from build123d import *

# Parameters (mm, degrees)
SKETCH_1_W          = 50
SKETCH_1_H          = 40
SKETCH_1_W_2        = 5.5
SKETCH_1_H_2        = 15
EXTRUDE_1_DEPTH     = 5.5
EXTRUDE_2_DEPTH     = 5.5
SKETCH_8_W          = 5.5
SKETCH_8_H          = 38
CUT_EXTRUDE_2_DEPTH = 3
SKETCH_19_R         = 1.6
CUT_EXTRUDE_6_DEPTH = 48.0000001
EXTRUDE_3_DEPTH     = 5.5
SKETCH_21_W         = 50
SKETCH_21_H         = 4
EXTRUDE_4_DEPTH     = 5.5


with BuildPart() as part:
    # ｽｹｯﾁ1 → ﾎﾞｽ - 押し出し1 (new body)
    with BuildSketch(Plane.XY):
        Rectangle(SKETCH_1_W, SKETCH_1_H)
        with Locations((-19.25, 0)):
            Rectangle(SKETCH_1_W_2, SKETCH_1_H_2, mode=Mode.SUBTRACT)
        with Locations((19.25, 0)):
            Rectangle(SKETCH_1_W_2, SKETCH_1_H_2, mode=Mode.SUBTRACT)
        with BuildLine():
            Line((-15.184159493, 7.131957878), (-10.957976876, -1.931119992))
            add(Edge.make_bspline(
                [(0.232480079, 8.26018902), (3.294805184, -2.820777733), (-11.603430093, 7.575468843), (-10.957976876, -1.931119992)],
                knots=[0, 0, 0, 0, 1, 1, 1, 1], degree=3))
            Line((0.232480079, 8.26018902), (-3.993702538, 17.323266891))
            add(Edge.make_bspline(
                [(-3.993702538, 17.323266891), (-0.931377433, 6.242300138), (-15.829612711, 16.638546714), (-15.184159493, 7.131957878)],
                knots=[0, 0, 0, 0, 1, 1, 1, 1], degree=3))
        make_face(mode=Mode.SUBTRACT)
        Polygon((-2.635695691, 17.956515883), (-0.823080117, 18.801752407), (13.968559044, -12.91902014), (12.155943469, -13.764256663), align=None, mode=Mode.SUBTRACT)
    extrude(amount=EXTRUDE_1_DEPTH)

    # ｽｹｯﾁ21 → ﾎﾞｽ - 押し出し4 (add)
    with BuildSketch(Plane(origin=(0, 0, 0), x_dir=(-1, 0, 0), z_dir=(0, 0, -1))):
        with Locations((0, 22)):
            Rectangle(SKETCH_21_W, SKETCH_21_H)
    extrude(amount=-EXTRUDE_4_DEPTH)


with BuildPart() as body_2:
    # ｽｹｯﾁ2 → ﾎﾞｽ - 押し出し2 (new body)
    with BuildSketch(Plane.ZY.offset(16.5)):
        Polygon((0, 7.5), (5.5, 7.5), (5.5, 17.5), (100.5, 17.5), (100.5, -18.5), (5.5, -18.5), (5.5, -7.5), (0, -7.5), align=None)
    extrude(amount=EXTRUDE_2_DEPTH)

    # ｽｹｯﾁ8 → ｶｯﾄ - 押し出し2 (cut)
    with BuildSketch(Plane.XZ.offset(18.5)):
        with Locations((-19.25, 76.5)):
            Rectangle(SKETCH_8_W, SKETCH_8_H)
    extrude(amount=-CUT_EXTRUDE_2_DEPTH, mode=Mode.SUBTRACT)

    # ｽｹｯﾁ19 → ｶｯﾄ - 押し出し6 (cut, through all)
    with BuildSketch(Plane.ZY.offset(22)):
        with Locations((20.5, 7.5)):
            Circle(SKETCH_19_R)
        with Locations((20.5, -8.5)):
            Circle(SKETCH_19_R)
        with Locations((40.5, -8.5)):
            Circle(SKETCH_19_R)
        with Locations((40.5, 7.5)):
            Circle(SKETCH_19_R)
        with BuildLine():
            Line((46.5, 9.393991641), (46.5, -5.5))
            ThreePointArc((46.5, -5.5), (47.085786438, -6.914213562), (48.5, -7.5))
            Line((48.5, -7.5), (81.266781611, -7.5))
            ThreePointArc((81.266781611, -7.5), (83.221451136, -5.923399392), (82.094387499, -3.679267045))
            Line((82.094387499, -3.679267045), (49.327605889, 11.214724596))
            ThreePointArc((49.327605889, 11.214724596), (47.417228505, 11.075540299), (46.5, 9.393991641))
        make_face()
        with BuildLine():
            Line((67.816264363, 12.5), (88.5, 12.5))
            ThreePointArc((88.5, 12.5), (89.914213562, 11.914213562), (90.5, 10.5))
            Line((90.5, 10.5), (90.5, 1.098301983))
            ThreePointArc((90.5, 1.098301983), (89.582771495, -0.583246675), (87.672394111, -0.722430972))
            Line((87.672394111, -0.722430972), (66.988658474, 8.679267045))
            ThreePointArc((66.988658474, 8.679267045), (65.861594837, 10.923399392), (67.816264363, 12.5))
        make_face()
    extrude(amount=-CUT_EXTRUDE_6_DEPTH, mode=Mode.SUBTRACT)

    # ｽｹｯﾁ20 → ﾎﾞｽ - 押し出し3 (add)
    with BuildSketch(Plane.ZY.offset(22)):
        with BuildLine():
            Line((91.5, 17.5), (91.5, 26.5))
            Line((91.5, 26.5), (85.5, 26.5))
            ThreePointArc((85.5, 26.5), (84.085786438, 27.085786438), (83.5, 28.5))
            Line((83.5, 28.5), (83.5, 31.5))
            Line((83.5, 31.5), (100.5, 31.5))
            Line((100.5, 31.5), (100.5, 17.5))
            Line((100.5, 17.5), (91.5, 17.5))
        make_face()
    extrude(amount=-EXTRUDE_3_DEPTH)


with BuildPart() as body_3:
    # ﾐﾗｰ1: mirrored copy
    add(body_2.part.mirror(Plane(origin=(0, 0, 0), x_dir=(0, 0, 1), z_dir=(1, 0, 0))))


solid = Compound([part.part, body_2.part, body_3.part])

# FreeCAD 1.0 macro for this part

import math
import FreeCAD as App
import Part
import Sketcher

V = App.Vector
Q = App.Units.Quantity

doc = App.newDocument("Part")
body = doc.addObject("PartDesign::Body", "Body")

# Sketch on XY plane
sketch1 = doc.addObject("Sketcher::SketchObject", "Sketch")
body.addObject(sketch1)
sketch1.AttachmentSupport = (doc.XY_Plane, [""])
sketch1.MapMode = "FlatFace"
sketch1.addGeometry([
    Part.LineSegment(V(-25, 20, 0), V(-25, -20, 0)),  # 0
    Part.LineSegment(V(-25, -20, 0), V(25, -20, 0)),  # 1
    Part.LineSegment(V(25, -20, 0), V(25, 20, 0)),  # 2
    Part.LineSegment(V(25, 20, 0), V(-25, 20, 0)),  # 3
    Part.LineSegment(V(-16.5, -7.5, 0), V(-22, -7.5, 0)),  # 4
    Part.LineSegment(V(-22, -7.5, 0), V(-22, 7.5, 0)),  # 5
    Part.LineSegment(V(-22, 7.5, 0), V(-16.5, 7.5, 0)),  # 6
    Part.LineSegment(V(-16.5, 7.5, 0), V(-16.5, -7.5, 0)),  # 7
    Part.LineSegment(V(22, -7.5, 0), V(16.5, -7.5, 0)),  # 8
    Part.LineSegment(V(16.5, -7.5, 0), V(16.5, 7.5, 0)),  # 9
    Part.LineSegment(V(16.5, 7.5, 0), V(22, 7.5, 0)),  # 10
    Part.LineSegment(V(22, 7.5, 0), V(22, -7.5, 0)),  # 11
    Part.LineSegment(V(-10.957977, -1.93112, 0), V(-15.184159, 7.131958, 0)),  # 12
    Part.BSplineCurve([V(-3.993703, 17.323267, 0), V(-0.931377, 6.2423, 0), V(-15.829613, 16.638547, 0), V(-15.184159, 7.131958, 0)], [4, 4], [0, 1], False, 3, [1, 1, 1, 1], False),  # 13
    Part.LineSegment(V(-3.993703, 17.323267, 0), V(0.23248, 8.260189, 0)),  # 14
    Part.BSplineCurve([V(0.23248, 8.260189, 0), V(3.294805, -2.820778, 0), V(-11.60343, 7.575469, 0), V(-10.957977, -1.93112, 0)], [4, 4], [0, 1], False, 3, [1, 1, 1, 1], False),  # 15
    Part.LineSegment(V(12.155943, -13.764257, 0), V(-2.635696, 17.956516, 0)),  # 16
    Part.LineSegment(V(-2.635696, 17.956516, 0), V(-0.82308, 18.801752, 0)),  # 17
    Part.LineSegment(V(-0.82308, 18.801752, 0), V(13.968559, -12.91902, 0)),  # 18
    Part.LineSegment(V(13.968559, -12.91902, 0), V(12.155943, -13.764257, 0)),  # 19
], False)
sketch1.addConstraint([
    Sketcher.Constraint("Block", 13),
    Sketcher.Constraint("Block", 15),
    Sketcher.Constraint("Coincident", 0, 2, 1, 1),
    Sketcher.Constraint("Coincident", 1, 2, 2, 1),
    Sketcher.Constraint("Coincident", 2, 2, 3, 1),
    Sketcher.Constraint("Coincident", 3, 2, 0, 1),
    Sketcher.Constraint("Coincident", 4, 2, 5, 1),
    Sketcher.Constraint("Coincident", 5, 2, 6, 1),
    Sketcher.Constraint("Coincident", 6, 2, 7, 1),
    Sketcher.Constraint("Coincident", 7, 2, 4, 1),
    Sketcher.Constraint("Coincident", 8, 2, 9, 1),
    Sketcher.Constraint("Coincident", 9, 2, 10, 1),
    Sketcher.Constraint("Coincident", 10, 2, 11, 1),
    Sketcher.Constraint("Coincident", 11, 2, 8, 1),
    Sketcher.Constraint("Coincident", 12, 2, 13, 2),
    Sketcher.Constraint("Coincident", 13, 1, 14, 1),
    Sketcher.Constraint("Coincident", 14, 2, 15, 1),
    Sketcher.Constraint("Coincident", 15, 2, 12, 1),
    Sketcher.Constraint("Coincident", 16, 2, 17, 1),
    Sketcher.Constraint("Coincident", 17, 2, 18, 1),
    Sketcher.Constraint("Coincident", 18, 2, 19, 1),
    Sketcher.Constraint("Coincident", 19, 2, 16, 1),
    Sketcher.Constraint("Vertical", 0),
    Sketcher.Constraint("Horizontal", 1),
    Sketcher.Constraint("Vertical", 2),
    Sketcher.Constraint("Horizontal", 3),
    Sketcher.Constraint("Horizontal", 4),
    Sketcher.Constraint("Vertical", 5),
    Sketcher.Constraint("Horizontal", 6),
    Sketcher.Constraint("Vertical", 7),
    Sketcher.Constraint("Horizontal", 8),
    Sketcher.Constraint("Vertical", 9),
    Sketcher.Constraint("Horizontal", 10),
    Sketcher.Constraint("Vertical", 11),
    Sketcher.Constraint("DistanceX", 1, 1, 1, 2, Q("50 mm")),
    Sketcher.Constraint("DistanceY", 0, 2, 0, 1, Q("40 mm")),
    Sketcher.Constraint("DistanceY", 5, 1, 5, 2, Q("15 mm")),
    Sketcher.Constraint("DistanceY", 9, 1, 9, 2, Q("15 mm")),
    Sketcher.Constraint("Distance", 16, Q("35 mm")),
    Sketcher.Constraint("Distance", 17, Q("2 mm")),
    Sketcher.Constraint("Distance", 18, Q("35 mm")),
    Sketcher.Constraint("Distance", 19, Q("2 mm")),
    Sketcher.Constraint("DistanceX", 4, 2, 4, 1, Q("5.5 mm")),
    Sketcher.Constraint("DistanceX", 8, 2, 8, 1, Q("5.5 mm")),
    Sketcher.Constraint("DistanceX", 0, 2, -1, 1, Q("25 mm")),
    Sketcher.Constraint("DistanceY", 0, 2, -1, 1, Q("20 mm")),
    Sketcher.Constraint("DistanceX", 4, 2, -1, 1, Q("22 mm")),
    Sketcher.Constraint("DistanceX", -1, 1, 10, 2, Q("22 mm")),
    Sketcher.Constraint("DistanceY", 8, 2, 6, 2, Q("15 mm")),
    Sketcher.Constraint("DistanceY", 4, 2, -1, 1, Q("7.5 mm")),
    Sketcher.Constraint("DistanceX", 17, 2, -1, 1, Q("0.82308 mm")),
    Sketcher.Constraint("DistanceX", -1, 1, 18, 2, Q("13.968559 mm")),
    Sketcher.Constraint("DistanceY", 18, 2, -1, 1, Q("12.91902 mm")),
    Sketcher.Constraint("DistanceY", 12, 2, 16, 2, Q("10.824558 mm")),
])
pad1 = doc.addObject("PartDesign::Pad", "Pad")
body.addObject(pad1)
pad1.Profile = sketch1
pad1.Length = 5.5

# Sketch on XY plane
sketch2 = doc.addObject("Sketcher::SketchObject", "Sketch001")
body.addObject(sketch2)
sketch2.AttachmentSupport = (doc.XY_Plane, [""])
sketch2.MapMode = "FlatFace"
sketch2.addGeometry([
    Part.LineSegment(V(25, 24, 0), V(25, 20, 0)),
    Part.LineSegment(V(25, 20, 0), V(-25, 20, 0)),
    Part.LineSegment(V(-25, 20, 0), V(-25, 24, 0)),
    Part.LineSegment(V(-25, 24, 0), V(25, 24, 0)),
], False)
sketch2.addConstraint([
    Sketcher.Constraint("Coincident", 0, 2, 1, 1),
    Sketcher.Constraint("Coincident", 1, 2, 2, 1),
    Sketcher.Constraint("Coincident", 2, 2, 3, 1),
    Sketcher.Constraint("Coincident", 3, 2, 0, 1),
    Sketcher.Constraint("Vertical", 0),
    Sketcher.Constraint("Horizontal", 1),
    Sketcher.Constraint("Vertical", 2),
    Sketcher.Constraint("Horizontal", 3),
    Sketcher.Constraint("DistanceX", 1, 2, 1, 1, Q("50 mm")),
    Sketcher.Constraint("DistanceY", 0, 2, 0, 1, Q("4 mm")),
    Sketcher.Constraint("DistanceX", -1, 1, 0, 2, Q("25 mm")),
    Sketcher.Constraint("DistanceY", -1, 1, 0, 2, Q("20 mm")),
])
pad2 = doc.addObject("PartDesign::Pad", "Pad001")
body.addObject(pad2)
pad2.Profile = sketch2
pad2.Length = 5.5
body2 = doc.addObject("PartDesign::Body", "Body001")

# Sketch on YZ plane
sketch3 = doc.addObject("Sketcher::SketchObject", "Sketch002")
body2.addObject(sketch3)
sketch3.AttachmentSupport = (doc.getObject("YZ_Plane001"), [""])
sketch3.MapMode = "FlatFace"
sketch3.AttachmentOffset = App.Placement(V(0, 0, -16.5), App.Rotation())
sketch3.addGeometry([
    Part.LineSegment(V(7.5, 5.5, 0), V(7.5, 0, 0)),  # 0
    Part.LineSegment(V(7.5, 0, 0), V(-7.5, 0, 0)),  # 1
    Part.LineSegment(V(-7.5, 0, 0), V(-7.5, 5.5, 0)),  # 2
    Part.LineSegment(V(-7.5, 5.5, 0), V(-18.5, 5.5, 0)),  # 3
    Part.LineSegment(V(-18.5, 5.5, 0), V(-18.5, 100.5, 0)),  # 4
    Part.LineSegment(V(-18.5, 100.5, 0), V(17.5, 100.5, 0)),  # 5
    Part.LineSegment(V(17.5, 100.5, 0), V(17.5, 5.5, 0)),  # 6
    Part.LineSegment(V(17.5, 5.5, 0), V(7.5, 5.5, 0)),  # 7
], False)
sketch3.addConstraint([
    Sketcher.Constraint("Coincident", 0, 2, 1, 1),
    Sketcher.Constraint("Coincident", 1, 2, 2, 1),
    Sketcher.Constraint("Coincident", 2, 2, 3, 1),
    Sketcher.Constraint("Coincident", 3, 2, 4, 1),
    Sketcher.Constraint("Coincident", 4, 2, 5, 1),
    Sketcher.Constraint("Coincident", 5, 2, 6, 1),
    Sketcher.Constraint("Coincident", 6, 2, 7, 1),
    Sketcher.Constraint("Coincident", 7, 2, 0, 1),
    Sketcher.Constraint("Vertical", 0),
    Sketcher.Constraint("Horizontal", 1),
    Sketcher.Constraint("Vertical", 2),
    Sketcher.Constraint("Horizontal", 3),
    Sketcher.Constraint("Vertical", 4),
    Sketcher.Constraint("Horizontal", 5),
    Sketcher.Constraint("Vertical", 6),
    Sketcher.Constraint("Horizontal", 7),
    Sketcher.Constraint("Symmetric", 0, 2, 1, 2, -1, 1),
    Sketcher.Constraint("Horizontal", 3, 2, 6, 2),
    Sketcher.Constraint("DistanceX", 1, 2, 1, 1, Q("15 mm")),
    Sketcher.Constraint("DistanceX", 3, 2, 3, 1, Q("11 mm")),
    Sketcher.Constraint("DistanceX", 5, 1, 5, 2, Q("36 mm")),
    Sketcher.Constraint("DistanceY", 4, 1, 4, 2, Q("95 mm")),
    Sketcher.Constraint("DistanceY", 0, 2, 0, 1, Q("5.5 mm")),
])
pad3 = doc.addObject("PartDesign::Pad", "Pad002")
body2.addObject(pad3)
pad3.Profile = sketch3
pad3.Length = 5.5
pad3.Reversed = True

# Sketch on XZ plane
sketch4 = doc.addObject("Sketcher::SketchObject", "Sketch003")
body2.addObject(sketch4)
sketch4.AttachmentSupport = (doc.getObject("XZ_Plane001"), [""])
sketch4.MapMode = "FlatFace"
sketch4.AttachmentOffset = App.Placement(V(0, 0, 18.5), App.Rotation())
sketch4.addGeometry([
    Part.LineSegment(V(-22, 95.5, 0), V(-22, 57.5, 0)),
    Part.LineSegment(V(-22, 57.5, 0), V(-16.5, 57.5, 0)),
    Part.LineSegment(V(-16.5, 57.5, 0), V(-16.5, 95.5, 0)),
    Part.LineSegment(V(-16.5, 95.5, 0), V(-22, 95.5, 0)),
], False)
sketch4.addConstraint([
    Sketcher.Constraint("Coincident", 0, 2, 1, 1),
    Sketcher.Constraint("Coincident", 1, 2, 2, 1),
    Sketcher.Constraint("Coincident", 2, 2, 3, 1),
    Sketcher.Constraint("Coincident", 3, 2, 0, 1),
    Sketcher.Constraint("Vertical", 0),
    Sketcher.Constraint("Horizontal", 1),
    Sketcher.Constraint("Vertical", 2),
    Sketcher.Constraint("Horizontal", 3),
    Sketcher.Constraint("DistanceY", 0, 2, 0, 1, Q("38 mm")),
    Sketcher.Constraint("DistanceX", 1, 1, 1, 2, Q("5.5 mm")),
    Sketcher.Constraint("DistanceX", 0, 2, -1, 1, Q("22 mm")),
    Sketcher.Constraint("DistanceY", -1, 1, 0, 2, Q("57.5 mm")),
])
pocket1 = doc.addObject("PartDesign::Pocket", "Pocket")
body2.addObject(pocket1)
pocket1.Profile = sketch4
pocket1.Length = 3

# Sketch on YZ plane
sketch5 = doc.addObject("Sketcher::SketchObject", "Sketch004")
body2.addObject(sketch5)
sketch5.AttachmentSupport = (doc.getObject("YZ_Plane001"), [""])
sketch5.MapMode = "FlatFace"
sketch5.AttachmentOffset = App.Placement(V(0, 0, -22), App.Rotation())
sketch5.addGeometry([
    Part.Circle(V(7.5, 20.5, 0), V(0, 0, 1), 1.6),  # 0
    Part.Circle(V(-8.5, 20.5, 0), V(0, 0, 1), 1.6),  # 1
    Part.Circle(V(-8.5, 40.5, 0), V(0, 0, 1), 1.6),  # 2
    Part.Circle(V(7.5, 40.5, 0), V(0, 0, 1), 1.6),  # 3
    Part.LineSegment(V(9.393992, 46.5, 0), V(-5.5, 46.5, 0)),  # 4
    Part.ArcOfCircle(Part.Circle(V(-5.5, 48.5, 0), V(0, 0, 1), 2), math.radians(-180), math.radians(-90)),  # 5
    Part.LineSegment(V(-7.5, 48.5, 0), V(-7.5, 81.266782, 0)),  # 6
    Part.ArcOfCircle(Part.Circle(V(-5.5, 81.266782, 0), V(0, 0, 1), 2), math.radians(24.443955), math.radians(180)),  # 7
    Part.LineSegment(V(-3.679267, 82.094387, 0), V(11.214725, 49.327606, 0)),  # 8
    Part.ArcOfCircle(Part.Circle(V(9.393992, 48.5, 0), V(0, 0, 1), 2), math.radians(-90), math.radians(24.443955)),  # 9
    Part.LineSegment(V(12.5, 88.5, 0), V(12.5, 67.816264, 0)),  # 10
    Part.ArcOfCircle(Part.Circle(V(10.5, 67.816264, 0), V(0, 0, 1), 2), math.radians(-155.556045), math.radians(0)),  # 11
    Part.LineSegment(V(8.679267, 66.988658, 0), V(-0.722431, 87.672394, 0)),  # 12
    Part.ArcOfCircle(Part.Circle(V(1.098302, 88.5, 0), V(0, 0, 1), 2), math.radians(90), math.radians(204.443955)),  # 13
    Part.LineSegment(V(1.098302, 90.5, 0), V(10.5, 90.5, 0)),  # 14
    Part.ArcOfCircle(Part.Circle(V(10.5, 88.5, 0), V(0, 0, 1), 2), math.radians(0), math.radians(90)),  # 15
], False)
sketch5.addConstraint([
    Sketcher.Constraint("Tangent", 4, 2, 5, 2),
    Sketcher.Constraint("Tangent", 5, 1, 6, 1),
    Sketcher.Constraint("Tangent", 6, 2, 7, 2),
    Sketcher.Constraint("Tangent", 7, 1, 8, 1),
    Sketcher.Constraint("Tangent", 8, 2, 9, 2),
    Sketcher.Constraint("Tangent", 9, 1, 4, 1),
    Sketcher.Constraint("Tangent", 10, 2, 11, 2),
    Sketcher.Constraint("Tangent", 11, 1, 12, 1),
    Sketcher.Constraint("Tangent", 12, 2, 13, 2),
    Sketcher.Constraint("Tangent", 13, 1, 14, 1),
    Sketcher.Constraint("Tangent", 14, 2, 15, 2),
    Sketcher.Constraint("Tangent", 15, 1, 10, 1),
    Sketcher.Constraint("Horizontal", 4),
    Sketcher.Constraint("Vertical", 6),
    Sketcher.Constraint("Vertical", 10),
    Sketcher.Constraint("Horizontal", 14),
    Sketcher.Constraint("Equal", 0, 1),
    Sketcher.Constraint("Equal", 1, 2),
    Sketcher.Constraint("Equal", 2, 3),
    Sketcher.Constraint("Equal", 5, 7),
    Sketcher.Constraint("Equal", 7, 9),
    Sketcher.Constraint("Equal", 9, 11),
    Sketcher.Constraint("Equal", 11, 13),
    Sketcher.Constraint("Equal", 13, 15),
    Sketcher.Constraint("Parallel", 8, 12),
    Sketcher.Constraint("Horizontal", 0, 3, 1, 3),
    Sketcher.Constraint("Horizontal", 2, 3, 3, 3),
    Sketcher.Constraint("Vertical", 1, 3, 2, 3),
    Sketcher.Constraint("Vertical", 0, 3, 3, 3),
    Sketcher.Constraint("Radius", 5, Q("2 mm")),
    Sketcher.Constraint("Diameter", 0, Q("3.2 mm")),
    Sketcher.Constraint("DistanceX", 1, 3, 0, 3, Q("16 mm")),
    Sketcher.Constraint("DistanceY", 1, 3, 2, 3, Q("20 mm")),
    Sketcher.Constraint("DistanceX", 2, 3, 5, 3, Q("3 mm")),
    Sketcher.Constraint("DistanceY", 2, 3, 5, 3, Q("8 mm")),
    Sketcher.Constraint("DistanceX", 7, 3, 11, 3, Q("16 mm")),
    Sketcher.Constraint("DistanceY", 5, 3, 13, 3, Q("40 mm")),
    Sketcher.Constraint("DistanceX", -1, 1, 0, 3, Q("7.5 mm")),
    Sketcher.Constraint("DistanceY", -1, 1, 0, 3, Q("20.5 mm")),
    Sketcher.Constraint("DistanceX", 14, 1, 14, 2, Q("9.401698 mm")),
    Sketcher.Constraint("DistanceX", 4, 2, 4, 1, Q("14.893992 mm")),
    Sketcher.Constraint("DistanceY", 6, 1, 6, 2, Q("32.766782 mm")),
])
pocket2 = doc.addObject("PartDesign::Pocket", "Pocket001")
body2.addObject(pocket2)
pocket2.Profile = sketch5
pocket2.Type = "ThroughAll"
pocket2.Reversed = True

# Sketch on YZ plane
sketch6 = doc.addObject("Sketcher::SketchObject", "Sketch005")
body2.addObject(sketch6)
sketch6.AttachmentSupport = (doc.getObject("YZ_Plane001"), [""])
sketch6.MapMode = "FlatFace"
sketch6.AttachmentOffset = App.Placement(V(0, 0, -22), App.Rotation())
sketch6.addGeometry([
    Part.LineSegment(V(26.5, 91.5, 0), V(17.5, 91.5, 0)),  # 0
    Part.LineSegment(V(17.5, 91.5, 0), V(17.5, 100.5, 0)),  # 1
    Part.LineSegment(V(17.5, 100.5, 0), V(31.5, 100.5, 0)),  # 2
    Part.LineSegment(V(31.5, 100.5, 0), V(31.5, 83.5, 0)),  # 3
    Part.LineSegment(V(31.5, 83.5, 0), V(28.5, 83.5, 0)),  # 4
    Part.ArcOfCircle(Part.Circle(V(28.5, 85.5, 0), V(0, 0, 1), 2), math.radians(-180), math.radians(-90)),  # 5
    Part.LineSegment(V(26.5, 85.5, 0), V(26.5, 91.5, 0)),  # 6
], False)
sketch6.addConstraint([
    Sketcher.Constraint("Coincident", 0, 2, 1, 1),
    Sketcher.Constraint("Coincident", 1, 2, 2, 1),
    Sketcher.Constraint("Coincident", 2, 2, 3, 1),
    Sketcher.Constraint("Coincident", 3, 2, 4, 1),
    Sketcher.Constraint("Tangent", 4, 2, 5, 2),
    Sketcher.Constraint("Tangent", 5, 1, 6, 1),
    Sketcher.Constraint("Coincident", 6, 2, 0, 1),
    Sketcher.Constraint("Horizontal", 0),
    Sketcher.Constraint("Vertical", 1),
    Sketcher.Constraint("Horizontal", 2),
    Sketcher.Constraint("Vertical", 3),
    Sketcher.Constraint("Horizontal", 4),
    Sketcher.Constraint("Vertical", 6),
    Sketcher.Constraint("Equal", 0, 1),
    Sketcher.Constraint("Radius", 5, Q("2 mm")),
    Sketcher.Constraint("DistanceX", 0, 2, 0, 1, Q("9 mm")),
    Sketcher.Constraint("DistanceX", 2, 1, 2, 2, Q("14 mm")),
    Sketcher.Constraint("DistanceY", 3, 2, 3, 1, Q("17 mm")),
    Sketcher.Constraint("DistanceX", -1, 1, 5, 3, Q("28.5 mm")),
    Sketcher.Constraint("DistanceY", -1, 1, 5, 3, Q("85.5 mm")),
])
pad4 = doc.addObject("PartDesign::Pad", "Pad003")
body2.addObject(pad4)
pad4.Profile = sketch6
pad4.Length = 5.5
body3 = doc.addObject("PartDesign::Body", "Body002")
doc.recompute()

mirroring = doc.addObject("Part::Mirroring", "Mirroring")
mirroring.Source = body2
mirroring.Base = V(0, 0, 0)
mirroring.Normal = V(1, 0, 0)
body3.BaseFeature = mirroring
doc.recompute()
mirroring.Visibility = False

doc.recompute()
